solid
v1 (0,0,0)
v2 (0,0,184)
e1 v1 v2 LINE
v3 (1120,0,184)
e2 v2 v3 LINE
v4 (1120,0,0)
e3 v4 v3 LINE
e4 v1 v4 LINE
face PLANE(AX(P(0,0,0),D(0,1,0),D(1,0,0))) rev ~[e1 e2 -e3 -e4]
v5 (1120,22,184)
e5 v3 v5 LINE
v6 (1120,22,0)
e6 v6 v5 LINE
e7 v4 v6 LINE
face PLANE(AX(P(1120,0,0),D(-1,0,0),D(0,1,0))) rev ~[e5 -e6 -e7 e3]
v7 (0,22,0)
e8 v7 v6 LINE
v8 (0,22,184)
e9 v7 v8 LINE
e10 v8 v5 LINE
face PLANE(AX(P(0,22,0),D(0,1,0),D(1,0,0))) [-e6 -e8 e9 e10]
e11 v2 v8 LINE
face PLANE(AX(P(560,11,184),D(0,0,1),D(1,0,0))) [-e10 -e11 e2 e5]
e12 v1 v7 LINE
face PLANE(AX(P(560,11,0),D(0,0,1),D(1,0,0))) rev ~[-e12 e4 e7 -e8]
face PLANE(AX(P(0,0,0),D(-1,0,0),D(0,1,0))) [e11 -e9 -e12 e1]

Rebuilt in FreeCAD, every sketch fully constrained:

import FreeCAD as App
import Part
import Sketcher
from FreeCAD import Vector
Q = App.Units.Quantity


def add_polygon(sketch, points):
    """Adds a closed chain of lines whose ends are joined by coincident constraints."""
    first, n = sketch.GeometryCount, len(points)
    for a, b in zip(points, points[1:] + points[:1]):
        sketch.addGeometry(Part.LineSegment(App.Vector(*a, 0), App.Vector(*b, 0)), False)
    for i in range(n):
        sketch.addConstraint(Sketcher.Constraint("Coincident", first + i, 2, first + (i + 1) % n, 1))

doc = App.newDocument("Part")
body = doc.addObject("PartDesign::Body", "Body")

# Sketch on XY plane
sketch1 = body.newObject("Sketcher::SketchObject", "Sketch")
sketch1.AttachmentSupport = (doc.getObject("XY_Plane"), [""])
sketch1.MapMode = "FlatFace"
add_polygon(sketch1, [(0, 22), (0, 0), (1120, 0), (1120, 22)])  # lines 0-3
sketch1.addConstraint([
    Sketcher.Constraint("Vertical", 0),
    Sketcher.Constraint("Horizontal", 1),
    Sketcher.Constraint("Vertical", 2),
    Sketcher.Constraint("Horizontal", 3),
    Sketcher.Constraint("Coincident", 0, 2, -1, 1),
    Sketcher.Constraint("DistanceX", 1, 1, 1, 2, Q("1120 mm")),
    Sketcher.Constraint("DistanceY", 0, 2, 0, 1, Q("22 mm")),
])
pad1 = body.newObject("PartDesign::Pad", "Pad")
pad1.Profile = sketch1
pad1.Length = 184

doc.recompute()
